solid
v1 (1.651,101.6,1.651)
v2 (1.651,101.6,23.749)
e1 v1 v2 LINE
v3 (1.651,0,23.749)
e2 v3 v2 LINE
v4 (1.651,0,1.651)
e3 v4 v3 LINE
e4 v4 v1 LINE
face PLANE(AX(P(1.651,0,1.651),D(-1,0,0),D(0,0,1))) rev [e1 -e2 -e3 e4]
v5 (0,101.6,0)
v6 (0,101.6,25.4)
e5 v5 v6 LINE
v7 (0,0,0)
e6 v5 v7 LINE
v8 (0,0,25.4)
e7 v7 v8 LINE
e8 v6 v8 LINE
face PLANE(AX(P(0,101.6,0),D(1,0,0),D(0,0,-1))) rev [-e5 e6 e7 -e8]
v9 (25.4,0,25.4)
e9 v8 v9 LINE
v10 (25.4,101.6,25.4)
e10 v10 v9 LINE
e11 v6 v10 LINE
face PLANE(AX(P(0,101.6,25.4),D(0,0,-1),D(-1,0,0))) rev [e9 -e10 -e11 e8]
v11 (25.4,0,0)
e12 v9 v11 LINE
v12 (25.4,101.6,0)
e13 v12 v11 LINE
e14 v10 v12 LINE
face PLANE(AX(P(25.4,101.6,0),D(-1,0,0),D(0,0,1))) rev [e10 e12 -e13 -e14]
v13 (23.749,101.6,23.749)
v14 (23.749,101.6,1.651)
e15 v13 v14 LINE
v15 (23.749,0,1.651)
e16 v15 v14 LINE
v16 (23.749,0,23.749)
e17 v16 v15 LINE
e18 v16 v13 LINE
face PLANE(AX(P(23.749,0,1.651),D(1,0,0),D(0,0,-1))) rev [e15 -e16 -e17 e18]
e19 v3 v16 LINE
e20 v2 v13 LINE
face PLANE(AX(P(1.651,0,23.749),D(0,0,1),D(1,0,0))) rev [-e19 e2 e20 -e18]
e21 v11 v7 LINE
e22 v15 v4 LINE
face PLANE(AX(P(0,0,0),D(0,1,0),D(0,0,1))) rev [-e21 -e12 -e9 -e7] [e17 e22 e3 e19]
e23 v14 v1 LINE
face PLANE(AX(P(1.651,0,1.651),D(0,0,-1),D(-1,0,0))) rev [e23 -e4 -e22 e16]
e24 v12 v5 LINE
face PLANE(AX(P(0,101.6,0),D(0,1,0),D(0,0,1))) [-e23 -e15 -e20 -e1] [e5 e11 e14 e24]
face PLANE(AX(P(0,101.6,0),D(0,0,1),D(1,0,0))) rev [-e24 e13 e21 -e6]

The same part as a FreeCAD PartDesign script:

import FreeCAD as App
import Part
import Sketcher

V = App.Vector
Q = App.Units.Quantity

doc = App.newDocument("Part")
body = doc.addObject("PartDesign::Body", "Body")

sketch1 = doc.addObject("Sketcher::SketchObject", "Sketch")
body.addObject(sketch1)
sketch1.AttachmentSupport = (doc.XZ_Plane, [""])
sketch1.MapMode = "FlatFace"
sketch1.addGeometry([
    Part.LineSegment(V(0, 0, 0), V(0, 25, 0)),
    Part.LineSegment(V(0, 25, 0), V(25, 25, 0)),
    Part.LineSegment(V(25, 25, 0), V(25, 0, 0)),
    Part.LineSegment(V(25, 0, 0), V(0, 0, 0)),
], False)
sketch1.addConstraint([
    Sketcher.Constraint("Coincident", 0, 2, 1, 1),
    Sketcher.Constraint("Coincident", 1, 2, 2, 1),
    Sketcher.Constraint("Coincident", 2, 2, 3, 1),
    Sketcher.Constraint("Coincident", 3, 2, 0, 1),
    Sketcher.Constraint("Vertical", 0),
    Sketcher.Constraint("Horizontal", 1),
    Sketcher.Constraint("Vertical", 2),
    Sketcher.Constraint("Horizontal", 3),
    Sketcher.Constraint("Coincident", 3, 2, -1, 1),
    Sketcher.Constraint("Equal", 3, 0),
    Sketcher.Constraint("DistanceX", 1, 1, 1, 2, Q("1 in")),
])
pad1 = doc.addObject("PartDesign::Pad", "Pad")
body.addObject(pad1)
pad1.Profile = sketch1
pad1.Length = Q("4 in")
pad1.Reversed = True

sketch2 = doc.addObject("Sketcher::SketchObject", "Sketch001")
body.addObject(sketch2)
sketch2.AttachmentSupport = (doc.XZ_Plane, [""])
sketch2.MapMode = "FlatFace"
sketch2.AttachmentOffset = App.Placement(V(0, 0, -4 * 25.4), App.Rotation())
sketch2.addGeometry([
    Part.LineSegment(V(2, 2, 0), V(2, 24, 0)),
    Part.LineSegment(V(2, 24, 0), V(24, 24, 0)),
    Part.LineSegment(V(24, 24, 0), V(24, 2, 0)),
    Part.LineSegment(V(24, 2, 0), V(2, 2, 0)),
], False)
sketch2.addConstraint([
    Sketcher.Constraint("Coincident", 0, 2, 1, 1),
    Sketcher.Constraint("Coincident", 1, 2, 2, 1),
    Sketcher.Constraint("Coincident", 2, 2, 3, 1),
    Sketcher.Constraint("Coincident", 3, 2, 0, 1),
    Sketcher.Constraint("Vertical", 0),
    Sketcher.Constraint("Horizontal", 1),
    Sketcher.Constraint("Vertical", 2),
    Sketcher.Constraint("Horizontal", 3),
    Sketcher.Constraint("Equal", 3, 0),
    Sketcher.Constraint("DistanceX", 1, 1, 1, 2, Q("0.87 in")),
    Sketcher.Constraint("DistanceX", -1, 1, 0, 2, Q("0.065 in")),
    Sketcher.Constraint("DistanceY", -1, 1, 0, 2, Q("0.935 in")),
])
pocket1 = doc.addObject("PartDesign::Pocket", "Pocket")
body.addObject(pocket1)
pocket1.Profile = sketch2
pocket1.Length = Q("4 in")
pocket1.Reversed = True

doc.recompute()
